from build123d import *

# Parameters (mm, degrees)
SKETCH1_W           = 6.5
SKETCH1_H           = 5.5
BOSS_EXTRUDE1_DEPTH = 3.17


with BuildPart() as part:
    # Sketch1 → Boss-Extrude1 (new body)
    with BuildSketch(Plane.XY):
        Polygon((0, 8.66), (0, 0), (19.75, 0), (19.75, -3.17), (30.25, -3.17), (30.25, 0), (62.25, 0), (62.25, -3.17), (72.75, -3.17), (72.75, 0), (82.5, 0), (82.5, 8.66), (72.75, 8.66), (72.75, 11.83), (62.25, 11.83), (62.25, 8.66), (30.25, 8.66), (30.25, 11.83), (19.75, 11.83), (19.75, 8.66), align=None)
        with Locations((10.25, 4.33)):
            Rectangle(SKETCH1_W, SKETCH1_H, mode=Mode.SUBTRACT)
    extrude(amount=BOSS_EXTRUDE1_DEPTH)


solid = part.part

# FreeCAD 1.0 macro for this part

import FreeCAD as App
import Part
import Sketcher
from FreeCAD import Vector
Q = App.Units.Quantity

doc = App.newDocument("Part")
body = doc.addObject("PartDesign::Body", "Body")

sketch1 = body.newObject("Sketcher::SketchObject", "Sketch")
sketch1.AttachmentSupport = (doc.getObject("XY_Plane"), [""])
sketch1.MapMode = "FlatFace"
sketch1.addGeometry([
    Part.LineSegment(Vector(0, 8.7, 0), Vector(0, 0, 0)),
    Part.LineSegment(Vector(0, 0, 0), Vector(19.8, 0, 0)),
    Part.LineSegment(Vector(19.8, 0, 0), Vector(19.8, -3.2, 0)),
    Part.LineSegment(Vector(19.8, -3.2, 0), Vector(30.2, -3.2, 0)),
    Part.LineSegment(Vector(30.2, -3.2, 0), Vector(30.2, 0, 0)),
    Part.LineSegment(Vector(30.2, 0, 0), Vector(62.2, 0, 0)),
    Part.LineSegment(Vector(62.2, 0, 0), Vector(62.2, -3.2, 0)),
    Part.LineSegment(Vector(62.2, -3.2, 0), Vector(72.8, -3.2, 0)),
    Part.LineSegment(Vector(72.8, -3.2, 0), Vector(72.8, 0, 0)),
    Part.LineSegment(Vector(72.8, 0, 0), Vector(82.5, 0, 0)),
    Part.LineSegment(Vector(82.5, 0, 0), Vector(82.5, 8.7, 0)),
    Part.LineSegment(Vector(82.5, 8.7, 0), Vector(72.8, 8.7, 0)),
    Part.LineSegment(Vector(72.8, 8.7, 0), Vector(72.8, 11.8, 0)),
    Part.LineSegment(Vector(72.8, 11.8, 0), Vector(62.2, 11.8, 0)),
    Part.LineSegment(Vector(62.2, 11.8, 0), Vector(62.2, 8.7, 0)),
    Part.LineSegment(Vector(62.2, 8.7, 0), Vector(30.2, 8.7, 0)),
    Part.LineSegment(Vector(30.2, 8.7, 0), Vector(30.2, 11.8, 0)),
    Part.LineSegment(Vector(30.2, 11.8, 0), Vector(19.8, 11.8, 0)),
    Part.LineSegment(Vector(19.8, 11.8, 0), Vector(19.8, 8.7, 0)),
    Part.LineSegment(Vector(19.8, 8.7, 0), Vector(0, 8.7, 0)),
    Part.LineSegment(Vector(13.5, 1.6, 0), Vector(7, 1.6, 0)),
    Part.LineSegment(Vector(7, 1.6, 0), Vector(7, 7.1, 0)),
    Part.LineSegment(Vector(7, 7.1, 0), Vector(13.5, 7.1, 0)),
    Part.LineSegment(Vector(13.5, 7.1, 0), Vector(13.5, 1.6, 0)),
], False)
sketch1.addConstraint([
    Sketcher.Constraint("Coincident", 0, 2, 1, 1),
    Sketcher.Constraint("Coincident", 1, 2, 2, 1),
    Sketcher.Constraint("Coincident", 2, 2, 3, 1),
    Sketcher.Constraint("Coincident", 3, 2, 4, 1),
    Sketcher.Constraint("Coincident", 4, 2, 5, 1),
    Sketcher.Constraint("Coincident", 5, 2, 6, 1),
    Sketcher.Constraint("Coincident", 6, 2, 7, 1),
    Sketcher.Constraint("Coincident", 7, 2, 8, 1),
    Sketcher.Constraint("Coincident", 8, 2, 9, 1),
    Sketcher.Constraint("Coincident", 9, 2, 10, 1),
    Sketcher.Constraint("Coincident", 10, 2, 11, 1),
    Sketcher.Constraint("Coincident", 11, 2, 12, 1),
    Sketcher.Constraint("Coincident", 12, 2, 13, 1),
    Sketcher.Constraint("Coincident", 13, 2, 14, 1),
    Sketcher.Constraint("Coincident", 14, 2, 15, 1),
    Sketcher.Constraint("Coincident", 15, 2, 16, 1),
    Sketcher.Constraint("Coincident", 16, 2, 17, 1),
    Sketcher.Constraint("Coincident", 17, 2, 18, 1),
    Sketcher.Constraint("Coincident", 18, 2, 19, 1),
    Sketcher.Constraint("Coincident", 19, 2, 0, 1),
    Sketcher.Constraint("Coincident", 20, 2, 21, 1),
    Sketcher.Constraint("Coincident", 21, 2, 22, 1),
    Sketcher.Constraint("Coincident", 22, 2, 23, 1),
    Sketcher.Constraint("Coincident", 23, 2, 20, 1),
    Sketcher.Constraint("Vertical", 0),
    Sketcher.Constraint("Horizontal", 1),
    Sketcher.Constraint("Vertical", 2),
    Sketcher.Constraint("Horizontal", 3),
    Sketcher.Constraint("Vertical", 4),
    Sketcher.Constraint("Horizontal", 5),
    Sketcher.Constraint("Vertical", 6),
    Sketcher.Constraint("Horizontal", 7),
    Sketcher.Constraint("Vertical", 8),
    Sketcher.Constraint("Horizontal", 9),
    Sketcher.Constraint("Vertical", 10),
    Sketcher.Constraint("Horizontal", 11),
    Sketcher.Constraint("Vertical", 12),
    Sketcher.Constraint("Horizontal", 13),
    Sketcher.Constraint("Vertical", 14),
    Sketcher.Constraint("Horizontal", 15),
    Sketcher.Constraint("Vertical", 16),
    Sketcher.Constraint("Horizontal", 17),
    Sketcher.Constraint("Vertical", 18),
    Sketcher.Constraint("Horizontal", 19),
    Sketcher.Constraint("Horizontal", 20),
    Sketcher.Constraint("Vertical", 21),
    Sketcher.Constraint("Horizontal", 22),
    Sketcher.Constraint("Vertical", 23),
    Sketcher.Constraint("Coincident", 0, 2, -1, 1),
    Sketcher.Constraint("PointOnObject", 4, 2, -1),
    Sketcher.Constraint("PointOnObject", 8, 2, -1),
    Sketcher.Constraint("Horizontal", 3, 2, 6, 2),
    Sketcher.Constraint("Horizontal", 11, 2, 14, 2),
    Sketcher.Constraint("Horizontal", 13, 2, 16, 2),
    Sketcher.Constraint("Horizontal", 15, 2, 18, 2),
    Sketcher.Constraint("Vertical", 8, 2, 11, 2),
    Sketcher.Constraint("Vertical", 6, 2, 13, 2),
    Sketcher.Constraint("Vertical", 4, 2, 15, 2),
    Sketcher.Constraint("Vertical", 2, 2, 17, 2),
    Sketcher.Constraint("Equal", 3, 7),
    Sketcher.Constraint("Equal", 8, 12),
    Sketcher.Constraint("DistanceX", 5, 1, 5, 2, Q("32 mm")),
    Sketcher.Constraint("DistanceX", 3, 1, 3, 2, Q("10.5 mm")),
    Sketcher.Constraint("DistanceX", 20, 2, 20, 1, Q("6.5 mm")),
    Sketcher.Constraint("DistanceY", 21, 1, 21, 2, Q("5.5 mm")),
    Sketcher.Constraint("DistanceX", -1, 1, 20, 2, Q("7 mm")),
    Sketcher.Constraint("DistanceY", 7, 2, 12, 2, Q("15 mm")),
    Sketcher.Constraint("DistanceX", 1, 1, 1, 2, Q("19.75 mm")),
    Sketcher.Constraint("DistanceX", 9, 1, 9, 2, Q("9.75 mm")),
    Sketcher.Constraint("DistanceY", 0, 2, 0, 1, Q("8.66 mm")),
    Sketcher.Constraint("DistanceY", -1, 1, 20, 2, Q("1.58 mm")),
])
pad1 = body.newObject("PartDesign::Pad", "Pad")
pad1.Profile = sketch1
pad1.Length = 3.17

doc.recompute()
